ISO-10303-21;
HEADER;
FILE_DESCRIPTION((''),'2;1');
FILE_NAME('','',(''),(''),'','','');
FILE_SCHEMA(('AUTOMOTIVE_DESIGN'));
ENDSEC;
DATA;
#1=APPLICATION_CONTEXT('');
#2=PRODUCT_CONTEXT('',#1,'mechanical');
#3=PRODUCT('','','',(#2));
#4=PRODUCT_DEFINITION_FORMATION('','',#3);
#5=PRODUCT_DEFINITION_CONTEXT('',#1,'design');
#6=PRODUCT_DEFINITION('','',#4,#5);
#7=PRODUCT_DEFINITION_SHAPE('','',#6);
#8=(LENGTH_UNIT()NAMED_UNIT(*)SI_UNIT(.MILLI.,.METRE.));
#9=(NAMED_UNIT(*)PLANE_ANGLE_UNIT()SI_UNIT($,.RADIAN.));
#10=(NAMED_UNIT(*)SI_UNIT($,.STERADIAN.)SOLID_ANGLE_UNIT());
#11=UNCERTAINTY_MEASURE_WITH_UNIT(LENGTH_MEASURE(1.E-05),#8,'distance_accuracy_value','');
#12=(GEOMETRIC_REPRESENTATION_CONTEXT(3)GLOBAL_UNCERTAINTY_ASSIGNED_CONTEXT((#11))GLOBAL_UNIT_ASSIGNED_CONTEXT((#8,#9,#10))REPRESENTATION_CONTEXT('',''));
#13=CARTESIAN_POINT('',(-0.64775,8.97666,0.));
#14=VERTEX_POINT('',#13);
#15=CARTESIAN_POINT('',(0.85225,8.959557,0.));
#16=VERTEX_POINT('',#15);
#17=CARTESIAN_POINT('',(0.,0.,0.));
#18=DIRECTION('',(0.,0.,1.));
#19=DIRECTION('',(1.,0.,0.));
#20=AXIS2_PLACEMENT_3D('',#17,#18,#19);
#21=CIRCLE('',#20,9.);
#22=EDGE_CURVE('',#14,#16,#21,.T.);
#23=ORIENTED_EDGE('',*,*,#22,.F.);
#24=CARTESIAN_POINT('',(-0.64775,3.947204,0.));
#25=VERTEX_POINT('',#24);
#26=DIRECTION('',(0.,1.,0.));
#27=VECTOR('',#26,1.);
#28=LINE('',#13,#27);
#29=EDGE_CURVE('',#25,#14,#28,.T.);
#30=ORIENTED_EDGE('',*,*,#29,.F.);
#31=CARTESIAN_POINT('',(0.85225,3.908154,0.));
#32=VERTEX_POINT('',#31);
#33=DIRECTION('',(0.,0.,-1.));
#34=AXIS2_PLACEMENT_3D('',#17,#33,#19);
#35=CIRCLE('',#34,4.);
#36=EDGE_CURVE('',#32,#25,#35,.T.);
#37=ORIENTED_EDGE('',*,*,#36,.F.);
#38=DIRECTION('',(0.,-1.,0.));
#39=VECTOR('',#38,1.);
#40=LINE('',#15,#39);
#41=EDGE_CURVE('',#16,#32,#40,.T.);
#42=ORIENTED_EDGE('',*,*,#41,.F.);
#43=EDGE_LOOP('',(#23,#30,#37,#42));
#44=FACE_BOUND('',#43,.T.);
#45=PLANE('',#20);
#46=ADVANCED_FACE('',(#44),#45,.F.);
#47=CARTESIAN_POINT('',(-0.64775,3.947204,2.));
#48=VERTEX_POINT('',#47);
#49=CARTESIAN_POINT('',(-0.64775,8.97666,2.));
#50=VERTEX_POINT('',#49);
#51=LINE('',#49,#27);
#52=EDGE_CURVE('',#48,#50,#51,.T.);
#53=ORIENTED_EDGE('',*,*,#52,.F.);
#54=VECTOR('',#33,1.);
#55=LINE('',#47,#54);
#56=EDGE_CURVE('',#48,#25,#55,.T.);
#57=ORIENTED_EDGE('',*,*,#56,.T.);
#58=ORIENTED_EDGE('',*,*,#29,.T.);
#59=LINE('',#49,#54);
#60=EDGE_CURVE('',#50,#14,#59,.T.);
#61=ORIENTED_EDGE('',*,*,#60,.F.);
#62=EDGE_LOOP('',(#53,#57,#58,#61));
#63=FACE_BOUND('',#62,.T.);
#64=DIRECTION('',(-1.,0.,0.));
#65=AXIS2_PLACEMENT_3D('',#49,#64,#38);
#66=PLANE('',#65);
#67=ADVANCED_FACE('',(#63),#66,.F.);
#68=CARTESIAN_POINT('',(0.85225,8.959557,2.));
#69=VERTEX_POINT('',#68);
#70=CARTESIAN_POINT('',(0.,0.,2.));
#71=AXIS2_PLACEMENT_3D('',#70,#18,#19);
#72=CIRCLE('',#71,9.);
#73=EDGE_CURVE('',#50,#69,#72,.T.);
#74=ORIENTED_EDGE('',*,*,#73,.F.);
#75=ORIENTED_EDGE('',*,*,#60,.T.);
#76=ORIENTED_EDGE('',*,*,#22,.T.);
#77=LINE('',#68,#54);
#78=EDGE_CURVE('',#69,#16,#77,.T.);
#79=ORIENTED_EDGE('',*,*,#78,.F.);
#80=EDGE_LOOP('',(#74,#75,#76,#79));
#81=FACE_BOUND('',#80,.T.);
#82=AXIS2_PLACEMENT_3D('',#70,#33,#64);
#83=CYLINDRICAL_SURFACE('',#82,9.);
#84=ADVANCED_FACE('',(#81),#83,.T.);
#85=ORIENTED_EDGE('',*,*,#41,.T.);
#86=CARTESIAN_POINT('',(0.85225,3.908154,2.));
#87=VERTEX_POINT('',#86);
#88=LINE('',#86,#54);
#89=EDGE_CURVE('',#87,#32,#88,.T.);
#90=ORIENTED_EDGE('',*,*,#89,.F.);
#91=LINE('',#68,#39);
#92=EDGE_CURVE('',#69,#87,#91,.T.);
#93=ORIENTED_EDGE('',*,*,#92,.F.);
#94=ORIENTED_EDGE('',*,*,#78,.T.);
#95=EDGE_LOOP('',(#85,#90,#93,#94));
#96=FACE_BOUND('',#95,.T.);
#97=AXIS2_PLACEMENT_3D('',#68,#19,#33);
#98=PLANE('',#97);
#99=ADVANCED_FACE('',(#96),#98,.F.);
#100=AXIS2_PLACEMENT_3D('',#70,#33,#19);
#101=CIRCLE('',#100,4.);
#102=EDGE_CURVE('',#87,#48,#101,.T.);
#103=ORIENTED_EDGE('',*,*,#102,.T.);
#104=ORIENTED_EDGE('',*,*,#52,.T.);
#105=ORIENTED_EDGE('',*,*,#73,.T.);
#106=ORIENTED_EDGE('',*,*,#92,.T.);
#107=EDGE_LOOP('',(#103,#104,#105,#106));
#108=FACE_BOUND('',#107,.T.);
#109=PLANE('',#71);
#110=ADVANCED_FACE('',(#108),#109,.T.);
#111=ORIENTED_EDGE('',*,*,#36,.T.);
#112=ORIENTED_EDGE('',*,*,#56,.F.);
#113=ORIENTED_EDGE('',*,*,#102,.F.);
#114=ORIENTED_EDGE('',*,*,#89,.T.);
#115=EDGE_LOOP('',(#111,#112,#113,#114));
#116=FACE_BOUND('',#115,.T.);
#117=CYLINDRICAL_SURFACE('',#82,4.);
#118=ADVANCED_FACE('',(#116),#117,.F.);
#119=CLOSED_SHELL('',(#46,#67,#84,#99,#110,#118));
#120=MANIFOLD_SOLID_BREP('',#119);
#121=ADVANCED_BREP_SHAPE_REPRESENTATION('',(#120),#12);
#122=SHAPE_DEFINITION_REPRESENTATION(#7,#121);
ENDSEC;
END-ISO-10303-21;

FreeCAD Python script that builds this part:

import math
import FreeCAD as App
import Part
import Sketcher

V = App.Vector
Q = App.Units.Quantity

doc = App.newDocument("Part")
body = doc.addObject("PartDesign::Body", "Body")

sketch1 = doc.addObject("Sketcher::SketchObject", "Sketch")
body.addObject(sketch1)
sketch1.AttachmentSupport = (doc.XY_Plane, [""])
sketch1.MapMode = "FlatFace"
sketch1.addGeometry(Part.LineSegment(V(-0.6, 3.9, 0), V(-0.6, 9, 0)), False)
sketch1.addGeometry(Part.ArcOfCircle(Part.Circle(V(0, 0, 0), V(0, 0, 1), 9), math.radians(94), math.radians(445)), False)
sketch1.addGeometry(Part.LineSegment(V(0.9, 9, 0), V(0.9, 3.9, 0)), False)
sketch1.addGeometry(Part.ArcOfCircle(Part.Circle(V(0, 0, 0), V(0, 0, 1), 4), math.radians(99), math.radians(438)), False)
sketch1.addConstraint(Sketcher.Constraint("Coincident", 0, 2, 1, 1))
sketch1.addConstraint(Sketcher.Constraint("Coincident", 1, 2, 2, 1))
sketch1.addConstraint(Sketcher.Constraint("Coincident", 2, 2, 3, 2))
sketch1.addConstraint(Sketcher.Constraint("Coincident", 3, 1, 0, 1))
sketch1.addConstraint(Sketcher.Constraint("Vertical", 0))
sketch1.addConstraint(Sketcher.Constraint("Vertical", 2))
sketch1.addConstraint(Sketcher.Constraint("Coincident", 1, 3, -1, 1))
sketch1.addConstraint(Sketcher.Constraint("Coincident", 3, 3, -1, 1))
sketch1.addConstraint(Sketcher.Constraint("Radius", 1, Q("9 mm")))
sketch1.addConstraint(Sketcher.Constraint("Radius", 3, Q("4 mm")))
sketch1.addConstraint(Sketcher.Constraint("DistanceX", 0, 2, 1, 2, Q("1.5 mm")))
sketch1.addConstraint(Sketcher.Constraint("DistanceY", 0, 1, 0, 2, Q("5.029456 mm")))
pad1 = doc.addObject("PartDesign::Pad", "Pad")
body.addObject(pad1)
pad1.Profile = sketch1
pad1.Length = 2

doc.recompute()
